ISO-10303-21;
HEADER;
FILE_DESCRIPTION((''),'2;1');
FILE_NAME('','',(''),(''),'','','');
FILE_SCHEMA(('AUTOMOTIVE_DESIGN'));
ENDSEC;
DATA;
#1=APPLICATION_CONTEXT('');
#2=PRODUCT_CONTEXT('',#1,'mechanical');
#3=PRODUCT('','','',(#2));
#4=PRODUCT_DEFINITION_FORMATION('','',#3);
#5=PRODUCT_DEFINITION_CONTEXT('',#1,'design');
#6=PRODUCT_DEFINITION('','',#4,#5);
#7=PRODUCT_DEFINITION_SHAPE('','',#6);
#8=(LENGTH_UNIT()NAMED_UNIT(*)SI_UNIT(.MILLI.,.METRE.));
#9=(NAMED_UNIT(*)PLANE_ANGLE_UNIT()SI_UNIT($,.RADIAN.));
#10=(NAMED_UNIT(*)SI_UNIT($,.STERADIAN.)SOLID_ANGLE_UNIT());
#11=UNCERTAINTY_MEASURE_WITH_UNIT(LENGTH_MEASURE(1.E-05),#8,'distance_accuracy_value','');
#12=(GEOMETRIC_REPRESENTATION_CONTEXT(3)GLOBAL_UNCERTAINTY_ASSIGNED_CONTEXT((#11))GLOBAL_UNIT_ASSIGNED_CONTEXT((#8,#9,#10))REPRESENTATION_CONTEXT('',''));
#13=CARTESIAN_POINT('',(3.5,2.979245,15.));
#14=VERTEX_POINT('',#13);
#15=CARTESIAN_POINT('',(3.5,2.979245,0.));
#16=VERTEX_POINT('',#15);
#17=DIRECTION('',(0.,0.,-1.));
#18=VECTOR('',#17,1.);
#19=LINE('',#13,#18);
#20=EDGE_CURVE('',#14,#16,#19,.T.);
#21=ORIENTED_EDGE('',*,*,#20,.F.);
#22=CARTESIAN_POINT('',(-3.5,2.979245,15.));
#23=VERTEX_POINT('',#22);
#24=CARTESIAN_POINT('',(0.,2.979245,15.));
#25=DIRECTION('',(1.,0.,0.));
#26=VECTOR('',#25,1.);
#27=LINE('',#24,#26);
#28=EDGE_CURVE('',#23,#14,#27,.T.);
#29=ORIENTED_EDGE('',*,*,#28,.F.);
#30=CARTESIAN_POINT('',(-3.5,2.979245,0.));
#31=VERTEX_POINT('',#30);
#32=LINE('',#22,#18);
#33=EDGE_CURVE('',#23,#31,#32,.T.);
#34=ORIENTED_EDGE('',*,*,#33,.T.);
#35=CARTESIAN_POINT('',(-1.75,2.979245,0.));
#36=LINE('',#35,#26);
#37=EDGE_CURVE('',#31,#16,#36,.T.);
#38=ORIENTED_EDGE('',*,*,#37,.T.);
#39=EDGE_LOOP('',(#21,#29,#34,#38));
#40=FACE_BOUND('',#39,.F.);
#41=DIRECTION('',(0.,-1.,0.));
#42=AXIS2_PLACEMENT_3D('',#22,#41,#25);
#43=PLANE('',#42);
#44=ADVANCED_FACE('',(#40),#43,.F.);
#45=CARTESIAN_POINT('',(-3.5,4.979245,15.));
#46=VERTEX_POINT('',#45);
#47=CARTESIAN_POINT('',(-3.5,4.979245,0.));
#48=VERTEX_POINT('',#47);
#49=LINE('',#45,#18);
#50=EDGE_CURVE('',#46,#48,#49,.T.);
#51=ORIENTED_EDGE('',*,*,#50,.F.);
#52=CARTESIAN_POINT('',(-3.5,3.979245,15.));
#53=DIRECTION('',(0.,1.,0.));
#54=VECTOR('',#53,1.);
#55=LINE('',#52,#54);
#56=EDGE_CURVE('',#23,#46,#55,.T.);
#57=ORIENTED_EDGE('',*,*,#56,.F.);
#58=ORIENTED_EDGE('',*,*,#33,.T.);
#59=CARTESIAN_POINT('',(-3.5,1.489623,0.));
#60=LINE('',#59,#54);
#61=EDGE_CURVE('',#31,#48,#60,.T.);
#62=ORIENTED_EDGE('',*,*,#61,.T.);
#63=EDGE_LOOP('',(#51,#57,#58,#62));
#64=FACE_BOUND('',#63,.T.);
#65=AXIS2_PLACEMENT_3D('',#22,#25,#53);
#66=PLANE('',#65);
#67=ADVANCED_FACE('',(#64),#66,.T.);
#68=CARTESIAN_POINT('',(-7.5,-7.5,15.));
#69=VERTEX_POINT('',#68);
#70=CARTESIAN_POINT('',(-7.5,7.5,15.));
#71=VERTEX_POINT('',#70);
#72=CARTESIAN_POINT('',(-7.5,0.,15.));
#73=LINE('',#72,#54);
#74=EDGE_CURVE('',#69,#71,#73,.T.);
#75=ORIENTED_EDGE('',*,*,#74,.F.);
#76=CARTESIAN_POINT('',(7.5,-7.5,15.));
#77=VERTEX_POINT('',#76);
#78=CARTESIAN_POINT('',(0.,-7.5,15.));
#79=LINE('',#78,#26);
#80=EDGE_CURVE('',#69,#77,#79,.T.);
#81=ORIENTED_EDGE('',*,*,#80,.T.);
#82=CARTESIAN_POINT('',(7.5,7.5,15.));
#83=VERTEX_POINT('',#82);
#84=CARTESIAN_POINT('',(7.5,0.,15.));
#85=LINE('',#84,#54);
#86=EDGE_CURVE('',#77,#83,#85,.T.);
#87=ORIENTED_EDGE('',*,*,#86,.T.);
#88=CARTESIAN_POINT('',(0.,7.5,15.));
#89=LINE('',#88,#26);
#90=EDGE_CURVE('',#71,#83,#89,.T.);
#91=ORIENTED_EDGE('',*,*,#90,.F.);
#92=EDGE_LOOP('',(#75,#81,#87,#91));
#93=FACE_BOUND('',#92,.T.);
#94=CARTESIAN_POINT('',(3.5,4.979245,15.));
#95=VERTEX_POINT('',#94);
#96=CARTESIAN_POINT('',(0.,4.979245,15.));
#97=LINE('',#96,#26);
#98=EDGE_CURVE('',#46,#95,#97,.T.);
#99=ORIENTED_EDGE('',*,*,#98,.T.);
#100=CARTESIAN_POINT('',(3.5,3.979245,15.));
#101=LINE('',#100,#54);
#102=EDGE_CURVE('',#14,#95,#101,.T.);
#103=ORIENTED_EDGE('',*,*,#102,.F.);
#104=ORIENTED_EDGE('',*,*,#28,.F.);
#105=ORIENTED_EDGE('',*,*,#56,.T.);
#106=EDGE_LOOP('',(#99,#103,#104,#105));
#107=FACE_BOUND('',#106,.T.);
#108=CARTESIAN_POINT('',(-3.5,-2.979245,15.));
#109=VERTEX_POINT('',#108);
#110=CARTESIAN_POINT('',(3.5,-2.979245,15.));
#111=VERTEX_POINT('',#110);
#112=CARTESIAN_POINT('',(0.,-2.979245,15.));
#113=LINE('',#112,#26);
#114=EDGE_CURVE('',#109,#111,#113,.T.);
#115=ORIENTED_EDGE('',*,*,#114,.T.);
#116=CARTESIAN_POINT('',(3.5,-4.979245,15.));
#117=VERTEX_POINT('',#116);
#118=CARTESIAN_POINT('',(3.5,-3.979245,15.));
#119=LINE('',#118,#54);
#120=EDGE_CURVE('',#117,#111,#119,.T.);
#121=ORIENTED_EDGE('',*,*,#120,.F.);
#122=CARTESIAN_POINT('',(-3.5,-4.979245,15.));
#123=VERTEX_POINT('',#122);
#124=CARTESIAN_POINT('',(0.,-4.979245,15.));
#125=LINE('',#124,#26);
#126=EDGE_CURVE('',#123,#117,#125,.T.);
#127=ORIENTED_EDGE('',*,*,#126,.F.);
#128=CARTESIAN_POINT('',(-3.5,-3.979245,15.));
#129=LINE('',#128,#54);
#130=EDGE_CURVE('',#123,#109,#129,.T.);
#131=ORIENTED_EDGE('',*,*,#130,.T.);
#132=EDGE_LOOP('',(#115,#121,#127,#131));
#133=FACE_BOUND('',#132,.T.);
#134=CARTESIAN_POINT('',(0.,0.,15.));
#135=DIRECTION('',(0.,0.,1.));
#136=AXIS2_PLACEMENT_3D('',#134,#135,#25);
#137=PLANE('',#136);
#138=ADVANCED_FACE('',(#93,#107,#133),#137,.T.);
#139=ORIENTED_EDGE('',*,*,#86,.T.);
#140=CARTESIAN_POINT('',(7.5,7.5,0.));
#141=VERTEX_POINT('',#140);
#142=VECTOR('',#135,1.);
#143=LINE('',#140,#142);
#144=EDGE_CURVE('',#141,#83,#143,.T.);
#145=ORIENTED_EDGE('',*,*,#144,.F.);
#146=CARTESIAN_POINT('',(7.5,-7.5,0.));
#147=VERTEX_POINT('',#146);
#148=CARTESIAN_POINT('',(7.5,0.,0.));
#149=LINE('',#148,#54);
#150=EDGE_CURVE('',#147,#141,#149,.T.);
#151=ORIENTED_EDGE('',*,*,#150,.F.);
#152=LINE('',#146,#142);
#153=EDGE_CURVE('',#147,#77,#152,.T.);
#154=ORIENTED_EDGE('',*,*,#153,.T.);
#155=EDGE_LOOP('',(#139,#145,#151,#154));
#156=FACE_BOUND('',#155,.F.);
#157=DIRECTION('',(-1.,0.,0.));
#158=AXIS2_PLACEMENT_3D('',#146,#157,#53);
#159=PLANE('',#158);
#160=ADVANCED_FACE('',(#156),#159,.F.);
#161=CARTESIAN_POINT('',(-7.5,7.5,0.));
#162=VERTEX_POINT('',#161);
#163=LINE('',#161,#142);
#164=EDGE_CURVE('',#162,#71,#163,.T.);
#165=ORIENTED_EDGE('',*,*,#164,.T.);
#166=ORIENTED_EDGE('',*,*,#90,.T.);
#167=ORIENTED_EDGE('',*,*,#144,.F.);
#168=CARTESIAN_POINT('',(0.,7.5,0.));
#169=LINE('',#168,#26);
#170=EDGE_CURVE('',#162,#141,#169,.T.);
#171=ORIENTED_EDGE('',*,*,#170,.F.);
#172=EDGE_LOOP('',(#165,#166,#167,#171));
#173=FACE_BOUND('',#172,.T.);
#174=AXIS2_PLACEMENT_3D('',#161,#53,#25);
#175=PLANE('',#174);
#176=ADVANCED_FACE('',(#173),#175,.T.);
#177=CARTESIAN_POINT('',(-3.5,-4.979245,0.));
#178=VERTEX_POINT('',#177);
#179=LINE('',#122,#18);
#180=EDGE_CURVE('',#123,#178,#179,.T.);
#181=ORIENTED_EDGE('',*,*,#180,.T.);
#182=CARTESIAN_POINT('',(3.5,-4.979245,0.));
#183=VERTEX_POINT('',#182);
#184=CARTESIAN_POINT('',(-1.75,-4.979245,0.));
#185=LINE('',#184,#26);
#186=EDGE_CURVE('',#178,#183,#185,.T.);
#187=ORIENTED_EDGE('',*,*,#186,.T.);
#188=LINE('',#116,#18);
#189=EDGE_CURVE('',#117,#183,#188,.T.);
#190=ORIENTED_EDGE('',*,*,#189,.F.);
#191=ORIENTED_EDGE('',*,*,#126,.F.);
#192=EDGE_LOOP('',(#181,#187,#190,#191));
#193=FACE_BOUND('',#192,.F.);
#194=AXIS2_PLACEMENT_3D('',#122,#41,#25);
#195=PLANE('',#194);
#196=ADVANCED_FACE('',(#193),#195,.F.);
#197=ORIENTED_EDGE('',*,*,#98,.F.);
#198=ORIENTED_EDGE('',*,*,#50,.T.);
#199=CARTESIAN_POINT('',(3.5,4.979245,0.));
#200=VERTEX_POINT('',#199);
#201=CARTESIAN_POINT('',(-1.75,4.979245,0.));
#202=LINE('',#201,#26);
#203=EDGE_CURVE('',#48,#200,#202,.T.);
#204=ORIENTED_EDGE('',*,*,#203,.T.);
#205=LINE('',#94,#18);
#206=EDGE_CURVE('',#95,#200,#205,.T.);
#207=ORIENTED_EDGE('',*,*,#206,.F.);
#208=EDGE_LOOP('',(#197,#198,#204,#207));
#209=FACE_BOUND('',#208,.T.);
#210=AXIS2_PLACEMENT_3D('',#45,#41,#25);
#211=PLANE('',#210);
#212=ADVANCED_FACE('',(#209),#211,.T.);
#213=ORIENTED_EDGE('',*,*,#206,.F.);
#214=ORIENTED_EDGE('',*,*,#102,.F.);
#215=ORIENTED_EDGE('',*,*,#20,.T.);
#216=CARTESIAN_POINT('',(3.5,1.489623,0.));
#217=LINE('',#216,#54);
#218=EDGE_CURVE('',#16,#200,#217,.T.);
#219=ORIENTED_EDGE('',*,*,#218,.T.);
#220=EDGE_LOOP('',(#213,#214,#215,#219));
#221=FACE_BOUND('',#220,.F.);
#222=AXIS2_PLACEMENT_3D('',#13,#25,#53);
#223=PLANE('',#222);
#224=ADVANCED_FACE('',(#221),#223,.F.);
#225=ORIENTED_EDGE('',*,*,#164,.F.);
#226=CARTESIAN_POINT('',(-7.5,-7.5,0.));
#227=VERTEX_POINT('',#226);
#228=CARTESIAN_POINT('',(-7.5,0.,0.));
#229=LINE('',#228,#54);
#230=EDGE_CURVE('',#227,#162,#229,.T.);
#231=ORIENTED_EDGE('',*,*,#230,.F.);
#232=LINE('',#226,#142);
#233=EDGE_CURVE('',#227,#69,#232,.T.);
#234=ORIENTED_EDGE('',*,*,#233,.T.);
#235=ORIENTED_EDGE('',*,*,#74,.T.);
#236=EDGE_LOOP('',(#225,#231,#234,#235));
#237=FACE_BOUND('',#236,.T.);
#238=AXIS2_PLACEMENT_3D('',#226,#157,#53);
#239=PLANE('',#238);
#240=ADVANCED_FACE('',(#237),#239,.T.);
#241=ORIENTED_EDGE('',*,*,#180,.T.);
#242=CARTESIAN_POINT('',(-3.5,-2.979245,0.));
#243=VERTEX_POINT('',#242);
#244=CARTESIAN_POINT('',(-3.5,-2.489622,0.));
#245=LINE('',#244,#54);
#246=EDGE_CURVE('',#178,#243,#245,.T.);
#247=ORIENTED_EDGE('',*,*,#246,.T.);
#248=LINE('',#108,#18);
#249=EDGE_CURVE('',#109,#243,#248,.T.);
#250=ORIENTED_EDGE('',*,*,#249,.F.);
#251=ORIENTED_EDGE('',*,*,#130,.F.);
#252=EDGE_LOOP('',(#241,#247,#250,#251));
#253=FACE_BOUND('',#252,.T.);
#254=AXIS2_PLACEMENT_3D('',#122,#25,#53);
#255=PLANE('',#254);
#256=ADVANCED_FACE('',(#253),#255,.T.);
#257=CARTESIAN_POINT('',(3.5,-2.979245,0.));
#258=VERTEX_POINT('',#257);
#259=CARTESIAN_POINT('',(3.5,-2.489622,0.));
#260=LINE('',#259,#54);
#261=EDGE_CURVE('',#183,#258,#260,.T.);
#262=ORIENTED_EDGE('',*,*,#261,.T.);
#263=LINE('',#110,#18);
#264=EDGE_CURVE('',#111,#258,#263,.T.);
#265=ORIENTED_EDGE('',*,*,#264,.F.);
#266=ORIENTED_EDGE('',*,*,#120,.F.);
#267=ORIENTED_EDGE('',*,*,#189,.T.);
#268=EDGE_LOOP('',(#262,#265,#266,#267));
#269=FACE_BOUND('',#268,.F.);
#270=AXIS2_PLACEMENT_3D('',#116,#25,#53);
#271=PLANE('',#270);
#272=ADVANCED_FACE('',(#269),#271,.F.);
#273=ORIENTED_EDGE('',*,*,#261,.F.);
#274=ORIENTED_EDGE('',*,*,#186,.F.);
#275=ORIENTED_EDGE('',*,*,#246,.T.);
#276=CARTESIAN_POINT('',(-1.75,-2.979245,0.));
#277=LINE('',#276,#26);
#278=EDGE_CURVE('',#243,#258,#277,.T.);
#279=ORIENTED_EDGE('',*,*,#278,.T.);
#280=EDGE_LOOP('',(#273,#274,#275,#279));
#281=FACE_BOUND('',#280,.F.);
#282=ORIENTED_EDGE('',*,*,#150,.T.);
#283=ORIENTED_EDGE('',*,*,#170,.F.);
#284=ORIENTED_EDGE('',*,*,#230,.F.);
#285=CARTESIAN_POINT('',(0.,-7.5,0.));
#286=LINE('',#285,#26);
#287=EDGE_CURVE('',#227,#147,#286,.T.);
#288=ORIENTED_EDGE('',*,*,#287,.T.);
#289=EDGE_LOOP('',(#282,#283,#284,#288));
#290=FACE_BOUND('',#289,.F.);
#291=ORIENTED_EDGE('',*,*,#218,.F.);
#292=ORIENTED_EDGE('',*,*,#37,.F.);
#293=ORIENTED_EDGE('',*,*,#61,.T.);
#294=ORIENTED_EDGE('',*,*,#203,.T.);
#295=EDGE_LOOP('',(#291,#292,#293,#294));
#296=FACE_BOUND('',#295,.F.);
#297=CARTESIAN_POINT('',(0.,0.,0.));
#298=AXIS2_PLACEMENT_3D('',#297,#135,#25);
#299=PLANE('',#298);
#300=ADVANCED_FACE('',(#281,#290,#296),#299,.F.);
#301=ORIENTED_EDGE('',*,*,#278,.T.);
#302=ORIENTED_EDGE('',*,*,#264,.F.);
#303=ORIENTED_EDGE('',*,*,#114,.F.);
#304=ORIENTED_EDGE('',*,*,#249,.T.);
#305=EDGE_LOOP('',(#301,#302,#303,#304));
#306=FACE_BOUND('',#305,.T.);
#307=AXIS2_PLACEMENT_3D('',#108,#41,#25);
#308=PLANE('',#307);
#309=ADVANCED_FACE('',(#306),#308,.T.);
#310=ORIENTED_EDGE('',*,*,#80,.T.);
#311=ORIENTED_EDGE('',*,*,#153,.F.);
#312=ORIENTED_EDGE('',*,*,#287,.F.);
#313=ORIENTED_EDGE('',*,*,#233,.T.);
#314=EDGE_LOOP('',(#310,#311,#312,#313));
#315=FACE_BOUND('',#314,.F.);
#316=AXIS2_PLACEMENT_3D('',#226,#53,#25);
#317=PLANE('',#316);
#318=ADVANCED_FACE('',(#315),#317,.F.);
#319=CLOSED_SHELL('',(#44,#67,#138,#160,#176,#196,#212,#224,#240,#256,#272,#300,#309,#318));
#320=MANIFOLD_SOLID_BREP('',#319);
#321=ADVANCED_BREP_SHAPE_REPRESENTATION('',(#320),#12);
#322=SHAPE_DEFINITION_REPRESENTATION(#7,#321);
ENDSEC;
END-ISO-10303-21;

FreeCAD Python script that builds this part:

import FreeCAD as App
import Part
import Sketcher
from FreeCAD import Vector
Q = App.Units.Quantity


def add_polygon(sketch, points):
    """Adds a closed chain of lines whose ends are joined by coincident constraints."""
    first, n = sketch.GeometryCount, len(points)
    for a, b in zip(points, points[1:] + points[:1]):
        sketch.addGeometry(Part.LineSegment(App.Vector(*a, 0), App.Vector(*b, 0)), False)
    for i in range(n):
        sketch.addConstraint(Sketcher.Constraint("Coincident", first + i, 2, first + (i + 1) % n, 1))

doc = App.newDocument("Part")
body = doc.addObject("PartDesign::Body", "Body")

sketch1 = body.newObject("Sketcher::SketchObject", "Sketch")
sketch1.AttachmentSupport = (doc.getObject("XY_Plane"), [""])
sketch1.MapMode = "FlatFace"
add_polygon(sketch1, [(-8, 8), (-8, -8), (8, -8), (8, 8)])
sketch1.addConstraint(Sketcher.Constraint("Vertical", 0))
sketch1.addConstraint(Sketcher.Constraint("Horizontal", 1))
sketch1.addConstraint(Sketcher.Constraint("Vertical", 2))
sketch1.addConstraint(Sketcher.Constraint("Horizontal", 3))
sketch1.addConstraint(Sketcher.Constraint("Symmetric", 0, 2, 2, 2, -1, 1))
sketch1.addConstraint(Sketcher.Constraint("Equal", 3, 0))
sketch1.addConstraint(Sketcher.Constraint("DistanceX", 1, 1, 1, 2, Q("15 mm")))
pad1 = body.newObject("PartDesign::Pad", "Pad")
pad1.Profile = sketch1
pad1.Length = 15

sketch2 = body.newObject("Sketcher::SketchObject", "Sketch001")
sketch2.AttachmentSupport = (doc.getObject("XY_Plane"), [""])
sketch2.MapMode = "FlatFace"
sketch2.AttachmentOffset = App.Placement(Vector(0, 0, 15), App.Rotation())
add_polygon(sketch2, [(-3.5, 5), (-3.5, 3), (3.5, 3), (3.5, 5)])
add_polygon(sketch2, [(-3.5, -3), (-3.5, -5), (3.5, -5), (3.5, -3)])
sketch2.addConstraint(Sketcher.Constraint("Vertical", 0))
sketch2.addConstraint(Sketcher.Constraint("Horizontal", 1))
sketch2.addConstraint(Sketcher.Constraint("Vertical", 2))
sketch2.addConstraint(Sketcher.Constraint("Horizontal", 3))
sketch2.addConstraint(Sketcher.Constraint("Vertical", 4))
sketch2.addConstraint(Sketcher.Constraint("Horizontal", 5))
sketch2.addConstraint(Sketcher.Constraint("Vertical", 6))
sketch2.addConstraint(Sketcher.Constraint("Horizontal", 7))
sketch2.addConstraint(Sketcher.Constraint("Symmetric", 2, 2, 4, 2, -1, 1))
sketch2.addConstraint(Sketcher.Constraint("Symmetric", 0, 2, 6, 2, -1, 1))
sketch2.addConstraint(Sketcher.Constraint("Vertical", 3, 2, 4, 2))
sketch2.addConstraint(Sketcher.Constraint("DistanceX", 1, 1, 1, 2, Q("7 mm")))
sketch2.addConstraint(Sketcher.Constraint("DistanceY", 0, 2, 0, 1, Q("2 mm")))
sketch2.addConstraint(Sketcher.Constraint("DistanceY", 4, 2, 0, 2, Q("7.95849 mm")))
pocket1 = body.newObject("PartDesign::Pocket", "Pocket")
pocket1.Profile = sketch2
pocket1.Length = 25

doc.recompute()
